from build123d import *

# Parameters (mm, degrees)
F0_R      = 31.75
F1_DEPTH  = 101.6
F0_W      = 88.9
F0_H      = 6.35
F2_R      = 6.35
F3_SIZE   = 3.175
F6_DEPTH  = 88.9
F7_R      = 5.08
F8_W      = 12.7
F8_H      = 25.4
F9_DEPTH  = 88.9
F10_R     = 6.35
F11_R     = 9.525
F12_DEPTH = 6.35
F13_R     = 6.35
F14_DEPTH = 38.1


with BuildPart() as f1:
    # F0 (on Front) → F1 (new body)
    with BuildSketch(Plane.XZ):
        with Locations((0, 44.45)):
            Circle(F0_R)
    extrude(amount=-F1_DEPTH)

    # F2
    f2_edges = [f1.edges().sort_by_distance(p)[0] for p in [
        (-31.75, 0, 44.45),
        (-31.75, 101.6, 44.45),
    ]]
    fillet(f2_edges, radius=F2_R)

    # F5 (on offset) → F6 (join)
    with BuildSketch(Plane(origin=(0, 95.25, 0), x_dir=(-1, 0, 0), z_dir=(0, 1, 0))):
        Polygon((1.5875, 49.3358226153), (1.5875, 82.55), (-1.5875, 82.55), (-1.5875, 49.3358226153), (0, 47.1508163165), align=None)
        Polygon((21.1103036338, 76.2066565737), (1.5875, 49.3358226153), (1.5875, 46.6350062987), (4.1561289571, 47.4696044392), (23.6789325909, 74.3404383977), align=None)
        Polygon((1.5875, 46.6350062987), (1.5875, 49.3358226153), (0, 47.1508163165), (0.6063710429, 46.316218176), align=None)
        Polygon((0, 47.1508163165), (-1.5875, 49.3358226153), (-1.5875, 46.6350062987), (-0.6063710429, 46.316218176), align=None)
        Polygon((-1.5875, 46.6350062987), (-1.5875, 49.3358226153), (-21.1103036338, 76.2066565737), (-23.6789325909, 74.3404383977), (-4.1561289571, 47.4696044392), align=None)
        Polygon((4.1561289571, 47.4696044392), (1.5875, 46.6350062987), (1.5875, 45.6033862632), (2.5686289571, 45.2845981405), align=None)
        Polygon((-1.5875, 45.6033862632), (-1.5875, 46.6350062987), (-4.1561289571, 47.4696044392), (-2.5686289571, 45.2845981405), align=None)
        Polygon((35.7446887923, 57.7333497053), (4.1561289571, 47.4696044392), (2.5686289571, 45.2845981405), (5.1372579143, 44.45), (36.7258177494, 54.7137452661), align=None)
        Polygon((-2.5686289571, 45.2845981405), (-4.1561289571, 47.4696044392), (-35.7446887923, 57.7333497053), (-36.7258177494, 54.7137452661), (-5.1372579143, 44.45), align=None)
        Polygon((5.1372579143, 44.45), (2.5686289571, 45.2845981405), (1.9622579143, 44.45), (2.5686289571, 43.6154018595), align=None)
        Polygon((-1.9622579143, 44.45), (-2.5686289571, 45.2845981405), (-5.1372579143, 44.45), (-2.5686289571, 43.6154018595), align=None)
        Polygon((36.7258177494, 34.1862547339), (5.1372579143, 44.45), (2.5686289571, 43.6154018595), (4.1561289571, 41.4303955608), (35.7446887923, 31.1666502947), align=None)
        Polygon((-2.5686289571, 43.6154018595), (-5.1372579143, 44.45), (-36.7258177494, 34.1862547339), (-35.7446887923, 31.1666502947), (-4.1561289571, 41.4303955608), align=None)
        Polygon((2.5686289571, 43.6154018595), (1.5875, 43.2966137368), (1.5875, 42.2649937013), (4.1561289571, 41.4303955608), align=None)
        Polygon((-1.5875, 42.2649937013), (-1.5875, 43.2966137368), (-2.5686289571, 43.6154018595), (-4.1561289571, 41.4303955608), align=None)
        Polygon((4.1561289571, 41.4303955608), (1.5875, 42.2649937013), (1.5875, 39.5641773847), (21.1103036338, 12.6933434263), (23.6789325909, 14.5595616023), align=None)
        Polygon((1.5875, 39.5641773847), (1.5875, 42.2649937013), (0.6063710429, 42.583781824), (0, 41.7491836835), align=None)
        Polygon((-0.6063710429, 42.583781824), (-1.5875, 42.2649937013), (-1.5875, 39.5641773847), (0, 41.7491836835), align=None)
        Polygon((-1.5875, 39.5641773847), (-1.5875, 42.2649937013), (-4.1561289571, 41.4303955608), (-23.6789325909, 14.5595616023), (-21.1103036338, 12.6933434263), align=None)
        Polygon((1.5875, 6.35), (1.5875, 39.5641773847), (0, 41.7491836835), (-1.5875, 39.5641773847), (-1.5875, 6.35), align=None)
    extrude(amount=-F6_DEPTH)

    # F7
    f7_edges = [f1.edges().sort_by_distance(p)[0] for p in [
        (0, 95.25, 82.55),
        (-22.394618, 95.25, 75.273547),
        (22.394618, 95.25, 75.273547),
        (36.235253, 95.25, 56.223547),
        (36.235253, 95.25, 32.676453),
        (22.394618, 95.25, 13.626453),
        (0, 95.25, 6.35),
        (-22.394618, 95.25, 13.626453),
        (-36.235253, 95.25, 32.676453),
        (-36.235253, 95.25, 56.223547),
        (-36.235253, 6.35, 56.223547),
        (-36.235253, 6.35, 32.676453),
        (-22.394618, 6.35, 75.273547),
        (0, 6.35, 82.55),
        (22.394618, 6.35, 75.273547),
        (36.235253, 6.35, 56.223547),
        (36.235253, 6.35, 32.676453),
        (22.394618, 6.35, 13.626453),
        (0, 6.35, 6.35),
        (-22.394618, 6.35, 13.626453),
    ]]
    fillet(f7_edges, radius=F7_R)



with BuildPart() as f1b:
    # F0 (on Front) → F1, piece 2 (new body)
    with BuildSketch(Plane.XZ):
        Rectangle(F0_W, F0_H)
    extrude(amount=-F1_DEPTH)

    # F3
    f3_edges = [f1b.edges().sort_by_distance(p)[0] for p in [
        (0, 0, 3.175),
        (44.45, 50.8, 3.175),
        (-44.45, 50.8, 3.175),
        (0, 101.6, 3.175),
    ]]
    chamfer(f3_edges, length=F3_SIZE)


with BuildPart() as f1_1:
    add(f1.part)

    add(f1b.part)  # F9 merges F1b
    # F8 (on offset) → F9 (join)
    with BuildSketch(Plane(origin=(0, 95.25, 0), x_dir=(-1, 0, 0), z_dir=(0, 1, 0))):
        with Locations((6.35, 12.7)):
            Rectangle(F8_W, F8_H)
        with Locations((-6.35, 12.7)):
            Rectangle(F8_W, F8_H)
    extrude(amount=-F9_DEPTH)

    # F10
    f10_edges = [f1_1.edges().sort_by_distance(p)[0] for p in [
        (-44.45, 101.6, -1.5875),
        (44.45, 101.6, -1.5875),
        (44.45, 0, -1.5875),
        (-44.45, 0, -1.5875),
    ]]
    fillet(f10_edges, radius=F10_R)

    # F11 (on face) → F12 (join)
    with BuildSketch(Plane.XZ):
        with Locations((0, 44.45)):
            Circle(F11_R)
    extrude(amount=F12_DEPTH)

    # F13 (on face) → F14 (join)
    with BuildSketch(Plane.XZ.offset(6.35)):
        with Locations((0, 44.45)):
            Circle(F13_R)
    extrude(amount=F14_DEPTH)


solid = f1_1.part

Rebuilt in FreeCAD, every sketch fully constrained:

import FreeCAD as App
import Part
import Sketcher

V = App.Vector
Q = App.Units.Quantity


def edges_at(feature, points):
    """Names of the edges that pass closest to the given points."""
    edges = feature.Shape.Edges
    near = lambda p: min(range(len(edges)), key=lambda i: edges[i].distToShape(Part.Vertex(*p))[0])
    return sorted({f"Edge{near(p) + 1}" for p in points})


def add_polygon(sketch, points):
    """Adds a closed chain of lines whose ends are joined by coincident constraints."""
    first, n = sketch.GeometryCount, len(points)
    for a, b in zip(points, points[1:] + points[:1]):
        sketch.addGeometry(Part.LineSegment(App.Vector(*a, 0), App.Vector(*b, 0)), False)
    for i in range(n):
        sketch.addConstraint(Sketcher.Constraint("Coincident", first + i, 2, first + (i + 1) % n, 1))

doc = App.newDocument("Part")
body = doc.addObject("PartDesign::Body", "Body")

# Sketch on XZ plane
sketch1 = doc.addObject("Sketcher::SketchObject", "Sketch")
body.addObject(sketch1)
sketch1.AttachmentSupport = (doc.XZ_Plane, [""])
sketch1.MapMode = "FlatFace"
sketch1.addGeometry(Part.Circle(V(0, 44, 0), V(0, 0, 1), 32), False)
sketch1.addConstraint([
    Sketcher.Constraint("PointOnObject", 0, 3, -2),
    Sketcher.Constraint("Diameter", 0, Q("2.5 in")),
    Sketcher.Constraint("DistanceY", -1, 1, 0, 3, Q("1.75 in")),
])
pad1 = doc.addObject("PartDesign::Pad", "Pad")
body.addObject(pad1)
pad1.Profile = sketch1
pad1.Length = Q("4 in")
pad1.Reversed = True
doc.recompute()

fillet = doc.addObject("PartDesign::Fillet", "Fillet")
body.addObject(fillet)
fillet.Base = (pad1, edges_at(pad1, [(-31.75, 0, 44.45), (-31.75, 101.6, 44.45)]))
fillet.Radius = Q("0.25 in")

# Sketch on XZ plane
sketch2 = doc.addObject("Sketcher::SketchObject", "Sketch001")
body.addObject(sketch2)
sketch2.AttachmentSupport = (doc.XZ_Plane, [""])
sketch2.MapMode = "FlatFace"
sketch2.AttachmentOffset = App.Placement(V(0, 0, -3.75 * 25.4), App.Rotation())
add_polygon(sketch2, [(21.1, 12.7), (1.6, 39.6), (1.6, 6.3), (-1.6, 6.3), (-1.6, 39.6), (-21.1, 12.7), (-23.7, 14.6), (-4.2, 41.4), (-35.7, 31.2), (-36.7, 34.2), (-5.1, 44.5), (-36.7, 54.7), (-35.7, 57.7), (-4.2, 47.5), (-23.7, 74.3), (-21.1, 76.2), (-1.6, 49.3), (-1.6, 82.5), (1.6, 82.5), (1.6, 49.3), (21.1, 76.2), (23.7, 74.3), (4.2, 47.5), (35.7, 57.7), (36.7, 54.7), (5.1, 44.5), (36.7, 34.2), (35.7, 31.2), (4.2, 41.4), (23.7, 14.6)])  # lines 0-29
add_polygon(sketch2, [(-0.6, 42.6), (0, 41.7), (0.6, 42.6), (1.6, 42.3), (1.6, 43.3), (2.6, 43.6), (2, 44.5), (2.6, 45.3), (1.6, 45.6), (1.6, 46.6), (0.6, 46.3), (0, 47.2), (-0.6, 46.3), (-1.6, 46.6), (-1.6, 45.6), (-2.6, 45.3), (-2, 44.5), (-2.6, 43.6), (-1.6, 43.3), (-1.6, 42.3)])  # lines 30-49
sketch2.addConstraint([
    Sketcher.Constraint("Vertical", 1),
    Sketcher.Constraint("Horizontal", 2),
    Sketcher.Constraint("Vertical", 3),
    Sketcher.Constraint("Vertical", 16),
    Sketcher.Constraint("Horizontal", 17),
    Sketcher.Constraint("Vertical", 18),
    Sketcher.Constraint("Vertical", 33),
    Sketcher.Constraint("Vertical", 38),
    Sketcher.Constraint("Vertical", 43),
    Sketcher.Constraint("Vertical", 48),
    Sketcher.Constraint("Symmetric", 0, 2, 3, 2, -2),
    Sketcher.Constraint("Symmetric", 15, 2, 18, 2, -2),
    Sketcher.Constraint("Symmetric", 14, 2, 19, 2, -2),
    Sketcher.Constraint("Symmetric", 13, 2, 20, 2, -2),
    Sketcher.Constraint("Symmetric", 12, 2, 21, 2, -2),
    Sketcher.Constraint("Symmetric", 11, 2, 22, 2, -2),
    Sketcher.Constraint("Symmetric", 10, 2, 23, 2, -2),
    Sketcher.Constraint("Symmetric", 9, 2, 24, 2, -2),
    Sketcher.Constraint("Symmetric", 8, 2, 25, 2, -2),
    Sketcher.Constraint("Symmetric", 7, 2, 26, 2, -2),
    Sketcher.Constraint("Symmetric", 6, 2, 27, 2, -2),
    Sketcher.Constraint("Symmetric", 5, 2, 28, 2, -2),
    Sketcher.Constraint("Symmetric", 4, 2, 29, 2, -2),
    Sketcher.Constraint("Symmetric", 39, 2, 41, 2, -2),
    Sketcher.Constraint("Symmetric", 38, 2, 42, 2, -2),
    Sketcher.Constraint("Symmetric", 36, 2, 44, 2, -2),
    Sketcher.Constraint("Symmetric", 35, 2, 45, 2, -2),
    Sketcher.Constraint("Symmetric", 34, 2, 46, 2, -2),
    Sketcher.Constraint("Symmetric", 33, 2, 47, 2, -2),
    Sketcher.Constraint("Symmetric", 31, 2, 49, 2, -2),
    Sketcher.Constraint("PointOnObject", 30, 2, -2),
    Sketcher.Constraint("PointOnObject", 40, 2, -2),
    Sketcher.Constraint("Perpendicular", 4, 5),
    Sketcher.Constraint("Perpendicular", 5, 6),
    Sketcher.Constraint("Perpendicular", 7, 8),
    Sketcher.Constraint("Perpendicular", 8, 9),
    Sketcher.Constraint("Perpendicular", 10, 11),
    Sketcher.Constraint("Perpendicular", 11, 12),
    Sketcher.Constraint("Parallel", 0, 13),
    Sketcher.Constraint("Perpendicular", 13, 14),
    Sketcher.Constraint("Perpendicular", 14, 15),
    Sketcher.Constraint("Parallel", 9, 22),
    Sketcher.Constraint("Perpendicular", 29, 30),
    Sketcher.Constraint("Parallel", 27, 32),
    Sketcher.Constraint("Parallel", 24, 34),
    Sketcher.Constraint("Parallel", 30, 35),
    Sketcher.Constraint("Parallel", 31, 36),
    Sketcher.Constraint("Parallel", 32, 37),
    Sketcher.Constraint("Parallel", 34, 39),
    Sketcher.Constraint("Parallel", 35, 40),
    Sketcher.Constraint("Parallel", 39, 44),
    Sketcher.Constraint("Parallel", 44, 49),
    Sketcher.Constraint("Horizontal", 24, 2, 35, 2),
    Sketcher.Constraint("Vertical", 8, 2, 10, 2),
    Sketcher.Constraint("Vertical", 7, 2, 11, 2),
    Sketcher.Constraint("Vertical", 6, 2, 12, 2),
    Sketcher.Constraint("Vertical", 5, 2, 13, 2),
    Sketcher.Constraint("Vertical", 4, 2, 14, 2),
    Sketcher.Constraint("Vertical", 3, 2, 15, 2),
    Sketcher.Constraint("Vertical", 18, 2, 32, 2),
    Sketcher.Constraint("Vertical", 34, 2, 36, 2),
    Sketcher.Constraint("Vertical", 33, 2, 37, 2),
    Sketcher.Constraint("Vertical", 31, 2, 39, 2),
    Sketcher.Constraint("Equal", 3, 16),
    Sketcher.Constraint("Equal", 33, 38),
    Sketcher.Constraint("Equal", 4, 6),
    Sketcher.Constraint("Equal", 6, 7),
    Sketcher.Constraint("Equal", 5, 8),
    Sketcher.Constraint("Equal", 7, 9),
    Sketcher.Constraint("Equal", 31, 32),
    Sketcher.Constraint("Equal", 32, 34),
    Sketcher.Constraint("Equal", 34, 35),
    Sketcher.Constraint("Angle", 0, Q("126 deg")),
    Sketcher.Constraint("Angle", 7, Q("-162 deg")),
    Sketcher.Constraint("DistanceY", 9, 2, 16, 2, Q("1.5 in")),
    Sketcher.Constraint("DistanceX", 2, 2, 2, 1, Q("0.125 in")),
    Sketcher.Constraint("DistanceY", -1, 1, 1, 2, Q("0.25 in")),
    Sketcher.Constraint("Distance", 5, Q("0.125 in")),
    Sketcher.Constraint("DistanceY", 33, 1, 33, 2, Q("1.03162 mm")),
    Sketcher.Constraint("DistanceY", 7, 2, 11, 2, Q("26.566699 mm")),
])
pad2 = doc.addObject("PartDesign::Pad", "Pad001")
body.addObject(pad2)
pad2.Profile = sketch2
pad2.Length = Q("3.5 in")
doc.recompute()

fillet2 = doc.addObject("PartDesign::Fillet", "Fillet001")
body.addObject(fillet2)
fillet2.Base = (pad2, edges_at(pad2, [
    (0, 95.25, 82.55),
    (-22.395, 95.25, 75.274),
    (22.395, 95.25, 75.274),
    (36.235, 95.25, 56.224),
    (36.235, 95.25, 32.676),
    (22.395, 95.25, 13.626),
    (0, 95.25, 6.35),
    (-22.395, 95.25, 13.626),
    (-36.235, 95.25, 32.676),
    (-36.235, 95.25, 56.224),
    (-36.235, 6.35, 56.224),
    (-36.235, 6.35, 32.676),
    (-22.395, 6.35, 75.274),
    (0, 6.35, 82.55),
    (22.395, 6.35, 75.274),
    (36.235, 6.35, 56.224),
    (36.235, 6.35, 32.676),
    (22.395, 6.35, 13.626),
    (0, 6.35, 6.35),
    (-22.395, 6.35, 13.626),
]))
fillet2.Radius = Q("0.2 in")
body2 = doc.addObject("PartDesign::Body", "Body001")

# Sketch on XZ plane
sketch3 = doc.addObject("Sketcher::SketchObject", "Sketch002")
body2.addObject(sketch3)
sketch3.AttachmentSupport = (doc.getObject("XZ_Plane001"), [""])
sketch3.MapMode = "FlatFace"
add_polygon(sketch3, [(-44, 3), (-44, -3), (44, -3), (44, 3)])  # lines 0-3
sketch3.addConstraint([
    Sketcher.Constraint("Vertical", 0),
    Sketcher.Constraint("Horizontal", 1),
    Sketcher.Constraint("Vertical", 2),
    Sketcher.Constraint("Horizontal", 3),
    Sketcher.Constraint("Symmetric", 0, 2, 2, 2, -1, 1),
    Sketcher.Constraint("DistanceX", 1, 1, 1, 2, Q("3.5 in")),
    Sketcher.Constraint("DistanceY", 0, 2, 0, 1, Q("0.25 in")),
])
pad3 = doc.addObject("PartDesign::Pad", "Pad002")
body2.addObject(pad3)
pad3.Profile = sketch3
pad3.Length = Q("4 in")
pad3.Reversed = True
doc.recompute()

chamfer = doc.addObject("PartDesign::Chamfer", "Chamfer")
body2.addObject(chamfer)
chamfer.Base = (pad3, edges_at(pad3, [
    (0, 0, 3.175),
    (44.45, 50.8, 3.175),
    (-44.45, 50.8, 3.175),
    (0, 101.6, 3.175),
]))
chamfer.Size = Q("0.125 in")
body.AllowCompound = True
doc.recompute()

boolean = doc.addObject("PartDesign::Boolean", "Boolean")
body.addObject(boolean)
boolean.Type = "Fuse"
boolean.addObjects([body2])

# Sketch on XZ plane
sketch4 = doc.addObject("Sketcher::SketchObject", "Sketch003")
body.addObject(sketch4)
sketch4.AttachmentSupport = (doc.XZ_Plane, [""])
sketch4.MapMode = "FlatFace"
sketch4.AttachmentOffset = App.Placement(V(0, 0, -3.75 * 25.4), App.Rotation())
add_polygon(sketch4, [(-13, 0), (-13, 25), (13, 25), (13, 0)])  # lines 0-3
sketch4.addConstraint([
    Sketcher.Constraint("Vertical", 0),
    Sketcher.Constraint("Horizontal", 1),
    Sketcher.Constraint("Vertical", 2),
    Sketcher.Constraint("Horizontal", 3),
    Sketcher.Constraint("Symmetric", 2, 2, 3, 2, -1, 1),
    Sketcher.Constraint("Equal", 3, 0),
    Sketcher.Constraint("DistanceX", 1, 1, 1, 2, Q("1 in")),
])
pad4 = doc.addObject("PartDesign::Pad", "Pad003")
body.addObject(pad4)
pad4.Profile = sketch4
pad4.Length = Q("3.5 in")
doc.recompute()

fillet3 = doc.addObject("PartDesign::Fillet", "Fillet002")
body.addObject(fillet3)
fillet3.Base = (pad4, edges_at(pad4, [
    (-44.45, 101.6, -1.587),
    (44.45, 101.6, -1.587),
    (44.45, 0, -1.587),
    (-44.45, 0, -1.587),
]))
fillet3.Radius = Q("0.25 in")

# Sketch on XZ plane
sketch5 = doc.addObject("Sketcher::SketchObject", "Sketch004")
body.addObject(sketch5)
sketch5.AttachmentSupport = (doc.XZ_Plane, [""])
sketch5.MapMode = "FlatFace"
sketch5.addGeometry(Part.Circle(V(0, 44, 0), V(0, 0, 1), 10), False)
sketch5.addConstraint([
    Sketcher.Constraint("PointOnObject", 0, 3, -2),
    Sketcher.Constraint("Diameter", 0, Q("0.75 in")),
    Sketcher.Constraint("DistanceY", -1, 1, 0, 3, Q("1.75 in")),
])
pad5 = doc.addObject("PartDesign::Pad", "Pad004")
body.addObject(pad5)
pad5.Profile = sketch5
pad5.Length = Q("0.25 in")

# Sketch on XZ plane
sketch6 = doc.addObject("Sketcher::SketchObject", "Sketch005")
body.addObject(sketch6)
sketch6.AttachmentSupport = (doc.XZ_Plane, [""])
sketch6.MapMode = "FlatFace"
sketch6.AttachmentOffset = App.Placement(V(0, 0, 0.25 * 25.4), App.Rotation())
sketch6.addGeometry(Part.Circle(V(0, 44, 0), V(0, 0, 1), 6), False)
sketch6.addConstraint([
    Sketcher.Constraint("PointOnObject", 0, 3, -2),
    Sketcher.Constraint("Diameter", 0, Q("0.5 in")),
    Sketcher.Constraint("DistanceY", -1, 1, 0, 3, Q("1.75 in")),
])
pad6 = doc.addObject("PartDesign::Pad", "Pad005")
body.addObject(pad6)
pad6.Profile = sketch6
pad6.Length = Q("1.5 in")

doc.recompute()
